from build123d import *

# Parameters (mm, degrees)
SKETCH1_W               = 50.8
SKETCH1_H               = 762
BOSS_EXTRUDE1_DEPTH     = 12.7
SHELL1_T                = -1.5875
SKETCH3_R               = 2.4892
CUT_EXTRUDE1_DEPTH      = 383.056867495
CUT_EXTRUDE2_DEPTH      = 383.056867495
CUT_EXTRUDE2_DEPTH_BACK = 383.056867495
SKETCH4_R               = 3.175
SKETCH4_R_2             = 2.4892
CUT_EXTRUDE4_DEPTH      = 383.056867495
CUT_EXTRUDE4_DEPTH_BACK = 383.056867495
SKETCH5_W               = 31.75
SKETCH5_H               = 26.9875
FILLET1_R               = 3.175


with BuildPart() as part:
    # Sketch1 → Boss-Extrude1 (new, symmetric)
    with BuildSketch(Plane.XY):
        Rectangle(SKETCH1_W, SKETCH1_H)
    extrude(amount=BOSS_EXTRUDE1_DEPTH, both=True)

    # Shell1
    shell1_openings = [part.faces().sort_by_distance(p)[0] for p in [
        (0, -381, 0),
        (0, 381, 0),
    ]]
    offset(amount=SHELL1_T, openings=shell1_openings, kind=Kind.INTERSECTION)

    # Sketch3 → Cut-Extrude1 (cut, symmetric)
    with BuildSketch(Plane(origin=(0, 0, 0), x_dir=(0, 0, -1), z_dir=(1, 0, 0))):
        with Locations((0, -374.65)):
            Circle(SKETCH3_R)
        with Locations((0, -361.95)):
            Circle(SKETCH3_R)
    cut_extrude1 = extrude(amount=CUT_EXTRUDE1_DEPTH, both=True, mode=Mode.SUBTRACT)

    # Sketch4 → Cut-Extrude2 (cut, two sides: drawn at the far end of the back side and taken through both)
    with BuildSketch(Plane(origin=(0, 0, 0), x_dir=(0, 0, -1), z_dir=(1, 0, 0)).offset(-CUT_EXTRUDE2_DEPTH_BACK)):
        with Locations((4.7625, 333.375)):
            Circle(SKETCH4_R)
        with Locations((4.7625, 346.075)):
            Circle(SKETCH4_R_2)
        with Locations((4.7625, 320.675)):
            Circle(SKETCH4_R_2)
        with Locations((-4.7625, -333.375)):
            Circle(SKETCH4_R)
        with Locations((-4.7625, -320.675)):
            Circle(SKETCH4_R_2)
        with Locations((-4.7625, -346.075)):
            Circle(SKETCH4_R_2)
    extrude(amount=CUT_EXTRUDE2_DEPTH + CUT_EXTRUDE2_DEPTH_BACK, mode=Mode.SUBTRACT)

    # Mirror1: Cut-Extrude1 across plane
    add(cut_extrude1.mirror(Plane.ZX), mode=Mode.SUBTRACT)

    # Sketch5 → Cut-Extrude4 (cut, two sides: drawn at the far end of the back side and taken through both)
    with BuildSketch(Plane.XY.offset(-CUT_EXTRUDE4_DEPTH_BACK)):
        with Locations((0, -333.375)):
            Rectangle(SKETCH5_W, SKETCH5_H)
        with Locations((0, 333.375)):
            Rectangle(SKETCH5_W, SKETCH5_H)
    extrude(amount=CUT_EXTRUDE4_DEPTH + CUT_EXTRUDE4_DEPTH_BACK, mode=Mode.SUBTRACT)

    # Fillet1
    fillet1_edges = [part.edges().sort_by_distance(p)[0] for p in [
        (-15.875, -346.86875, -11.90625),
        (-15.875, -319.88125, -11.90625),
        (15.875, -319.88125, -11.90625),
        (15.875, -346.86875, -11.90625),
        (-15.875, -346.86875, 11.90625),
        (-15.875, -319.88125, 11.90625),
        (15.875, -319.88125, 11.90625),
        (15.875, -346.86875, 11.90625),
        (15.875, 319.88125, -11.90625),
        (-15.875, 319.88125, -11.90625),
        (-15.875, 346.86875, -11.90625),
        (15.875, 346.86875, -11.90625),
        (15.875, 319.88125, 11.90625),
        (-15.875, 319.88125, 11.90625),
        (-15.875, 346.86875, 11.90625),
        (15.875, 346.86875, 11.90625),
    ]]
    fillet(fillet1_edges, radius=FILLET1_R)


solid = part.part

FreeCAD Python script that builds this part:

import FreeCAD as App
import Part
import Sketcher
from FreeCAD import Vector
Q = App.Units.Quantity


def edges_at(feature, points):
    """Names of the edges that pass closest to the given points."""
    edges = feature.Shape.Edges
    near = lambda p: min(range(len(edges)), key=lambda i: edges[i].distToShape(Part.Vertex(*p))[0])
    return sorted({f"Edge{near(p) + 1}" for p in points})


def faces_at(feature, points):
    """Names of the faces that lie closest to the given points."""
    faces = feature.Shape.Faces
    near = lambda p: min(range(len(faces)), key=lambda i: faces[i].distToShape(Part.Vertex(*p))[0])
    return sorted({f"Face{near(p) + 1}" for p in points})


def add_polygon(sketch, points):
    """Adds a closed chain of lines whose ends are joined by coincident constraints."""
    first, n = sketch.GeometryCount, len(points)
    for a, b in zip(points, points[1:] + points[:1]):
        sketch.addGeometry(Part.LineSegment(App.Vector(*a, 0), App.Vector(*b, 0)), False)
    for i in range(n):
        sketch.addConstraint(Sketcher.Constraint("Coincident", first + i, 2, first + (i + 1) % n, 1))

doc = App.newDocument("Part")
body = doc.addObject("PartDesign::Body", "Body")

# Sketch on XY plane
sketch1 = body.newObject("Sketcher::SketchObject", "Sketch")
sketch1.AttachmentSupport = (doc.getObject("XY_Plane"), [""])
sketch1.MapMode = "FlatFace"
add_polygon(sketch1, [(-25, 381), (-25, -381), (25, -381), (25, 381)])  # lines 0-3
sketch1.addConstraint(Sketcher.Constraint("Vertical", 0))
sketch1.addConstraint(Sketcher.Constraint("Horizontal", 1))
sketch1.addConstraint(Sketcher.Constraint("Vertical", 2))
sketch1.addConstraint(Sketcher.Constraint("Horizontal", 3))
sketch1.addConstraint(Sketcher.Constraint("Symmetric", 0, 2, 2, 2, -1, 1))
sketch1.addConstraint(Sketcher.Constraint("DistanceX", 1, 1, 1, 2, Q("2 in")))
sketch1.addConstraint(Sketcher.Constraint("DistanceY", 0, 2, 0, 1, Q("30 in")))
pad1 = body.newObject("PartDesign::Pad", "Pad")
pad1.Profile = sketch1
pad1.Length = Q("1 in")
pad1.Midplane = True
doc.recompute()

thickness = body.newObject("PartDesign::Thickness", "Thickness")
thickness.Base = (pad1, faces_at(pad1, [(0, -381, 0), (0, 381, 0)]))
thickness.Value = Q("0.0625 in")
thickness.Reversed = True
thickness.Join = "Intersection"

# Sketch on YZ plane
sketch2 = body.newObject("Sketcher::SketchObject", "Sketch001")
sketch2.AttachmentSupport = (doc.getObject("YZ_Plane"), [""])
sketch2.MapMode = "FlatFace"
sketch2.addGeometry(Part.Circle(Vector(-374.6, 0, 0), Vector(0, 0, 1), 2.5), False)
sketch2.addGeometry(Part.Circle(Vector(-361.9, 0, 0), Vector(0, 0, 1), 2.5), False)
sketch2.addConstraint(Sketcher.Constraint("Equal", 0, 1))
sketch2.addConstraint(Sketcher.Constraint("PointOnObject", 0, 3, -1))
sketch2.addConstraint(Sketcher.Constraint("PointOnObject", 1, 3, -1))
sketch2.addConstraint(Sketcher.Constraint("Diameter", 0, Q("0.196 in")))
sketch2.addConstraint(Sketcher.Constraint("DistanceX", 0, 3, 1, 3, Q("0.5 in")))
sketch2.addConstraint(Sketcher.Constraint("DistanceX", 0, 3, -1, 1, Q("14.75 in")))
pocket1 = body.newObject("PartDesign::Pocket", "Pocket")
pocket1.Profile = sketch2
pocket1.Length = 766.113735
pocket1.Midplane = True

# Sketch on YZ plane
sketch3 = body.newObject("Sketcher::SketchObject", "Sketch002")
sketch3.AttachmentSupport = (doc.getObject("YZ_Plane"), [""])
sketch3.MapMode = "FlatFace"
sketch3.addGeometry(Part.Circle(Vector(333.4, -4.8, 0), Vector(0, 0, 1), 3.2), False)
sketch3.addGeometry(Part.Circle(Vector(346.1, -4.8, 0), Vector(0, 0, 1), 2.5), False)
sketch3.addGeometry(Part.Circle(Vector(320.7, -4.8, 0), Vector(0, 0, 1), 2.5), False)
sketch3.addGeometry(Part.Circle(Vector(-333.4, 4.8, 0), Vector(0, 0, 1), 3.2), False)
sketch3.addGeometry(Part.Circle(Vector(-320.7, 4.8, 0), Vector(0, 0, 1), 2.5), False)
sketch3.addGeometry(Part.Circle(Vector(-346.1, 4.8, 0), Vector(0, 0, 1), 2.5), False)
sketch3.addConstraint(Sketcher.Constraint("Equal", 1, 2))
sketch3.addConstraint(Sketcher.Constraint("Equal", 0, 3))
sketch3.addConstraint(Sketcher.Constraint("Equal", 2, 4))
sketch3.addConstraint(Sketcher.Constraint("Equal", 4, 5))
sketch3.addConstraint(Sketcher.Constraint("Symmetric", 0, 3, 3, 3, -1, 1))
sketch3.addConstraint(Sketcher.Constraint("Symmetric", 2, 3, 4, 3, -1, 1))
sketch3.addConstraint(Sketcher.Constraint("Symmetric", 1, 3, 5, 3, -1, 1))
sketch3.addConstraint(Sketcher.Constraint("Horizontal", 0, 3, 1, 3))
sketch3.addConstraint(Sketcher.Constraint("Horizontal", 1, 3, 2, 3))
sketch3.addConstraint(Sketcher.Constraint("Diameter", 0, Q("0.25 in")))
sketch3.addConstraint(Sketcher.Constraint("Diameter", 1, Q("0.196 in")))
sketch3.addConstraint(Sketcher.Constraint("DistanceX", 2, 3, 1, 3, Q("1 in")))
sketch3.addConstraint(Sketcher.Constraint("DistanceX", 0, 3, 1, 3, Q("0.5 in")))
sketch3.addConstraint(Sketcher.Constraint("DistanceX", 3, 3, 2, 3, Q("25.75 in")))
sketch3.addConstraint(Sketcher.Constraint("DistanceY", 0, 3, -1, 1, Q("0.1875 in")))
pocket2 = body.newObject("PartDesign::Pocket", "Pocket001")
pocket2.Profile = sketch3
pocket2.Type = "ThroughAll"
pocket2.Midplane = True
doc.recompute()

mirrored = body.newObject("PartDesign::Mirrored", "Mirrored")
mirrored.Originals = [pocket1]
mirrored.MirrorPlane = (doc.getObject("XZ_Plane"), [""])
body.Tip = mirrored

# Sketch on XY plane
sketch4 = body.newObject("Sketcher::SketchObject", "Sketch003")
sketch4.AttachmentSupport = (doc.getObject("XY_Plane"), [""])
sketch4.MapMode = "FlatFace"
add_polygon(sketch4, [(-16, -320), (-16, -347), (16, -347), (16, -320)])  # lines 0-3
add_polygon(sketch4, [(-16, 347), (-16, 320), (16, 320), (16, 347)])  # lines 4-7
sketch4.addConstraint(Sketcher.Constraint("Vertical", 0))
sketch4.addConstraint(Sketcher.Constraint("Horizontal", 1))
sketch4.addConstraint(Sketcher.Constraint("Vertical", 2))
sketch4.addConstraint(Sketcher.Constraint("Horizontal", 3))
sketch4.addConstraint(Sketcher.Constraint("Vertical", 4))
sketch4.addConstraint(Sketcher.Constraint("Horizontal", 5))
sketch4.addConstraint(Sketcher.Constraint("Vertical", 6))
sketch4.addConstraint(Sketcher.Constraint("Horizontal", 7))
sketch4.addConstraint(Sketcher.Constraint("Symmetric", 2, 2, 4, 2, -1, 1))
sketch4.addConstraint(Sketcher.Constraint("Symmetric", 0, 2, 6, 2, -1, 1))
sketch4.addConstraint(Sketcher.Constraint("Vertical", 3, 2, 4, 2))
sketch4.addConstraint(Sketcher.Constraint("DistanceX", 1, 1, 1, 2, Q("1.25 in")))
sketch4.addConstraint(Sketcher.Constraint("DistanceY", 0, 2, 0, 1, Q("1.0625 in")))
sketch4.addConstraint(Sketcher.Constraint("DistanceY", 0, 2, 4, 2, Q("26.25 in")))
pocket3 = body.newObject("PartDesign::Pocket", "Pocket002")
pocket3.Profile = sketch4
pocket3.Type = "ThroughAll"
pocket3.Midplane = True
doc.recompute()

fillet = body.newObject("PartDesign::Fillet", "Fillet")
fillet.Base = (pocket3, edges_at(pocket3, [
    (-15.875, -346.869, -11.906),
    (-15.875, -319.881, -11.906),
    (15.875, -319.881, -11.906),
    (15.875, -346.869, -11.906),
    (-15.875, -346.869, 11.906),
    (-15.875, -319.881, 11.906),
    (15.875, -319.881, 11.906),
    (15.875, -346.869, 11.906),
    (15.875, 319.881, -11.906),
    (-15.875, 319.881, -11.906),
    (-15.875, 346.869, -11.906),
    (15.875, 346.869, -11.906),
    (15.875, 319.881, 11.906),
    (-15.875, 319.881, 11.906),
    (-15.875, 346.869, 11.906),
    (15.875, 346.869, 11.906),
]))
fillet.Radius = Q("0.125 in")

doc.recompute()
